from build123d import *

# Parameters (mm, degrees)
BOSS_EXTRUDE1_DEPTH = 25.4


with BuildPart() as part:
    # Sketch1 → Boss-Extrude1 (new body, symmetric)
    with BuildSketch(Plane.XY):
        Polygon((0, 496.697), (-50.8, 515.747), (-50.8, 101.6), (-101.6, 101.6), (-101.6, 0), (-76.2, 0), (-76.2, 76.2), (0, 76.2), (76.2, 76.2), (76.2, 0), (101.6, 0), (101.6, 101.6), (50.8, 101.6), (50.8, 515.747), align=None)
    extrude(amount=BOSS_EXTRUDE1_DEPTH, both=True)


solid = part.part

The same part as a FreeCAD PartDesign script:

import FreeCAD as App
import Part
import Sketcher
from FreeCAD import Vector
Q = App.Units.Quantity

doc = App.newDocument("Part")
body = doc.addObject("PartDesign::Body", "Body")

sketch1 = body.newObject("Sketcher::SketchObject", "Sketch")
sketch1.AttachmentSupport = (doc.getObject("XY_Plane"), [""])
sketch1.MapMode = "FlatFace"
sketch1.addGeometry(Part.LineSegment(Vector(0, 497, 0), Vector(-51, 516, 0)), False)
sketch1.addGeometry(Part.LineSegment(Vector(-51, 516, 0), Vector(-51, 102, 0)), False)
sketch1.addGeometry(Part.LineSegment(Vector(-51, 102, 0), Vector(-102, 102, 0)), False)
sketch1.addGeometry(Part.LineSegment(Vector(-102, 102, 0), Vector(-102, 0, 0)), False)
sketch1.addGeometry(Part.LineSegment(Vector(-102, 0, 0), Vector(-76, 0, 0)), False)
sketch1.addGeometry(Part.LineSegment(Vector(-76, 0, 0), Vector(-76, 76, 0)), False)
sketch1.addGeometry(Part.LineSegment(Vector(-76, 76, 0), Vector(76, 76, 0)), False)
sketch1.addGeometry(Part.LineSegment(Vector(76, 76, 0), Vector(76, 0, 0)), False)
sketch1.addGeometry(Part.LineSegment(Vector(76, 0, 0), Vector(102, 0, 0)), False)
sketch1.addGeometry(Part.LineSegment(Vector(102, 0, 0), Vector(102, 102, 0)), False)
sketch1.addGeometry(Part.LineSegment(Vector(102, 102, 0), Vector(51, 102, 0)), False)
sketch1.addGeometry(Part.LineSegment(Vector(51, 102, 0), Vector(51, 516, 0)), False)
sketch1.addGeometry(Part.LineSegment(Vector(51, 516, 0), Vector(0, 497, 0)), False)
sketch1.addConstraint(Sketcher.Constraint("Coincident", 0, 2, 1, 1))
sketch1.addConstraint(Sketcher.Constraint("Coincident", 1, 2, 2, 1))
sketch1.addConstraint(Sketcher.Constraint("Coincident", 2, 2, 3, 1))
sketch1.addConstraint(Sketcher.Constraint("Coincident", 3, 2, 4, 1))
sketch1.addConstraint(Sketcher.Constraint("Coincident", 4, 2, 5, 1))
sketch1.addConstraint(Sketcher.Constraint("Coincident", 5, 2, 6, 1))
sketch1.addConstraint(Sketcher.Constraint("Coincident", 6, 2, 7, 1))
sketch1.addConstraint(Sketcher.Constraint("Coincident", 7, 2, 8, 1))
sketch1.addConstraint(Sketcher.Constraint("Coincident", 8, 2, 9, 1))
sketch1.addConstraint(Sketcher.Constraint("Coincident", 9, 2, 10, 1))
sketch1.addConstraint(Sketcher.Constraint("Coincident", 10, 2, 11, 1))
sketch1.addConstraint(Sketcher.Constraint("Coincident", 11, 2, 12, 1))
sketch1.addConstraint(Sketcher.Constraint("Coincident", 12, 2, 0, 1))
sketch1.addConstraint(Sketcher.Constraint("Vertical", 1))
sketch1.addConstraint(Sketcher.Constraint("Horizontal", 2))
sketch1.addConstraint(Sketcher.Constraint("Vertical", 3))
sketch1.addConstraint(Sketcher.Constraint("Horizontal", 4))
sketch1.addConstraint(Sketcher.Constraint("Vertical", 5))
sketch1.addConstraint(Sketcher.Constraint("Horizontal", 6))
sketch1.addConstraint(Sketcher.Constraint("Vertical", 7))
sketch1.addConstraint(Sketcher.Constraint("Horizontal", 8))
sketch1.addConstraint(Sketcher.Constraint("Vertical", 9))
sketch1.addConstraint(Sketcher.Constraint("Horizontal", 10))
sketch1.addConstraint(Sketcher.Constraint("Vertical", 11))
sketch1.addConstraint(Sketcher.Constraint("Symmetric", 4, 2, 7, 2, -1, 1))
sketch1.addConstraint(Sketcher.Constraint("Symmetric", 3, 2, 8, 2, -2))
sketch1.addConstraint(Sketcher.Constraint("Symmetric", 1, 2, 10, 2, -2))
sketch1.addConstraint(Sketcher.Constraint("PointOnObject", 12, 2, -2))
sketch1.addConstraint(Sketcher.Constraint("Horizontal", 0, 2, 11, 2))
sketch1.addConstraint(Sketcher.Constraint("DistanceX", 2, 2, 2, 1, Q("2 in")))
sketch1.addConstraint(Sketcher.Constraint("DistanceX", 4, 1, 4, 2, Q("1 in")))
sketch1.addConstraint(Sketcher.Constraint("DistanceX", 6, 1, 6, 2, Q("6 in")))
sketch1.addConstraint(Sketcher.Constraint("DistanceY", 3, 2, 3, 1, Q("4 in")))
sketch1.addConstraint(Sketcher.Constraint("DistanceY", 5, 1, 5, 2, Q("3 in")))
sketch1.addConstraint(Sketcher.Constraint("DistanceY", 1, 2, 1, 1, Q("16.305 in")))
sketch1.addConstraint(Sketcher.Constraint("DistanceY", 12, 2, 0, 2, Q("0.75 in")))
pad1 = body.newObject("PartDesign::Pad", "Pad")
pad1.Profile = sketch1
pad1.Length = Q("2 in")
pad1.Midplane = True

doc.recompute()
